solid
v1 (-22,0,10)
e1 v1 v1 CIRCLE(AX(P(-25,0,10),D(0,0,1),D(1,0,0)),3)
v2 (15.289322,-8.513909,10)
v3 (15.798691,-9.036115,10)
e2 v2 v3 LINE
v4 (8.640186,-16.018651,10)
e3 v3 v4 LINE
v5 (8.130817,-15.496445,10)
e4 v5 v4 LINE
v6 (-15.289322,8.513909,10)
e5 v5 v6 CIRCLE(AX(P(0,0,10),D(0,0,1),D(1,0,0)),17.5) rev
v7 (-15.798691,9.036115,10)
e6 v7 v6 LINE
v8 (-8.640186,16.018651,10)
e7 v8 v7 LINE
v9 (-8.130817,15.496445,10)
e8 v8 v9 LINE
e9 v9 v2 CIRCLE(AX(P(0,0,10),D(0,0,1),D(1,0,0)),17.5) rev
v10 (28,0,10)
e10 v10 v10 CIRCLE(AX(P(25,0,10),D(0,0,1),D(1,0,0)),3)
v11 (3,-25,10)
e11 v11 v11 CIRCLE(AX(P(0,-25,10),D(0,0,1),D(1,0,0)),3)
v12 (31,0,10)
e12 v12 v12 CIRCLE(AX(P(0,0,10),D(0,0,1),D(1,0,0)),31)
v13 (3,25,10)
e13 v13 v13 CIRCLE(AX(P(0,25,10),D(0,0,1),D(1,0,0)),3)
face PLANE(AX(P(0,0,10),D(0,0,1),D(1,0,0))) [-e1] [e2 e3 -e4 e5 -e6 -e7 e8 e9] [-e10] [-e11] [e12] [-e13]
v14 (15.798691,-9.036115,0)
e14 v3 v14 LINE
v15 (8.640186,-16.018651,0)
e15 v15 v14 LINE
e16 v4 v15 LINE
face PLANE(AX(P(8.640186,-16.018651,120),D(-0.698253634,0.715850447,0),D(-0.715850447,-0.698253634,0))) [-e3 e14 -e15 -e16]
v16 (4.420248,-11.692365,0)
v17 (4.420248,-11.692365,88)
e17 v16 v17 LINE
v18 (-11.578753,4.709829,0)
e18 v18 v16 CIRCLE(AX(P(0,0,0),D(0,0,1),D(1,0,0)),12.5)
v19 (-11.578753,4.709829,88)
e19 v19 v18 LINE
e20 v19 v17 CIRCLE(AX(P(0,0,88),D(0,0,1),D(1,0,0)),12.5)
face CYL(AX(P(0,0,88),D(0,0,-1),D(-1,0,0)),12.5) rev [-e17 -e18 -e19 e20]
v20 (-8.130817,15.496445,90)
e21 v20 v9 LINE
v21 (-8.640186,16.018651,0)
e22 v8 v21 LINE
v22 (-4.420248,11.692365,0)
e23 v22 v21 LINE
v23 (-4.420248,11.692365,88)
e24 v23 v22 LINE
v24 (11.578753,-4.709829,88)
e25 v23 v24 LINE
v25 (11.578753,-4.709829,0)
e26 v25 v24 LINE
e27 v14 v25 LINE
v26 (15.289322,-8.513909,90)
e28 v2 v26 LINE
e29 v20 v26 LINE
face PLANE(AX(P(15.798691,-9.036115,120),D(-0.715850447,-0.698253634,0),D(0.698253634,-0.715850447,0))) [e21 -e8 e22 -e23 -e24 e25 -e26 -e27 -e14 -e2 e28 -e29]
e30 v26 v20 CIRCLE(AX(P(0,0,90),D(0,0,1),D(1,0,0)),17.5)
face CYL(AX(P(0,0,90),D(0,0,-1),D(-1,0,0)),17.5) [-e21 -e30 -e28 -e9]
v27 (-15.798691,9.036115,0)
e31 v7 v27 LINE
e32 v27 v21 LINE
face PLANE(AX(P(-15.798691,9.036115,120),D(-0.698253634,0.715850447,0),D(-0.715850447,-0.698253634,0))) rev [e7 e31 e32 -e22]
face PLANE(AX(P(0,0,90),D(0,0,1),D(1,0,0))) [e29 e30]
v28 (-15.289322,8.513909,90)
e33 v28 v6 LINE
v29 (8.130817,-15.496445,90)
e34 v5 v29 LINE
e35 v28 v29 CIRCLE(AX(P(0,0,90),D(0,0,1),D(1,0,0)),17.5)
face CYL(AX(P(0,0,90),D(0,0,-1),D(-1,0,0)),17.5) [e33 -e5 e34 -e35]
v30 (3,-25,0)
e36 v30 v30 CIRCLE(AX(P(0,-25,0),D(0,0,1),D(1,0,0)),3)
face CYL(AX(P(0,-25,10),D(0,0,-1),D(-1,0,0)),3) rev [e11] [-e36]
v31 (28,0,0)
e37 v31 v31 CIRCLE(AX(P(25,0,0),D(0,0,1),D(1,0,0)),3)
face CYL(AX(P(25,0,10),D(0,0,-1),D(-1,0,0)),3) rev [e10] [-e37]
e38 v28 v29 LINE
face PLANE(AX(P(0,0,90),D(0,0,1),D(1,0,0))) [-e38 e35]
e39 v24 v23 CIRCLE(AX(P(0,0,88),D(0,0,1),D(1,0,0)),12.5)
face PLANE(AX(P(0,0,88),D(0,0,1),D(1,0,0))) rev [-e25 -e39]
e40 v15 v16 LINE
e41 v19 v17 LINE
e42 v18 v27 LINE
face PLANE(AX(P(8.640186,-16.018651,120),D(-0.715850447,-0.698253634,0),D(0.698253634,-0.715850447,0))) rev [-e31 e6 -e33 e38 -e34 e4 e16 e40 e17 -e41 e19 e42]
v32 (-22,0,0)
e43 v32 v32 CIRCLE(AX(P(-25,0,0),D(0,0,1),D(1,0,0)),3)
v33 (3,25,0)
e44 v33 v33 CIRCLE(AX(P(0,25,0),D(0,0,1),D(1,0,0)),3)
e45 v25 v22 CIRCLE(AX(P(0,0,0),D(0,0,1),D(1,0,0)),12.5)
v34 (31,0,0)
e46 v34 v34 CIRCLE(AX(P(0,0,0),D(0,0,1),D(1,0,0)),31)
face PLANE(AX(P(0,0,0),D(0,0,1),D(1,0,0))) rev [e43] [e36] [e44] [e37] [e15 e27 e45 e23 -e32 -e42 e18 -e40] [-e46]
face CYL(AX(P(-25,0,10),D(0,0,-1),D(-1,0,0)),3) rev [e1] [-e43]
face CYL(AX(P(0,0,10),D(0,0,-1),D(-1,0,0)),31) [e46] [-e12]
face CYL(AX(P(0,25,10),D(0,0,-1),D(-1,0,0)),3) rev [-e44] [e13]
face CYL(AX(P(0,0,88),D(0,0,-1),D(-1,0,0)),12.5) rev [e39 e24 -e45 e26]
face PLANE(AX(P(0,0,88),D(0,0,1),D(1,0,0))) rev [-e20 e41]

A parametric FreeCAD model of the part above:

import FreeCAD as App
import Part
import Sketcher

V = App.Vector
Q = App.Units.Quantity


def add_polygon(sketch, points):
    """Adds a closed chain of lines whose ends are joined by coincident constraints."""
    first, n = sketch.GeometryCount, len(points)
    for a, b in zip(points, points[1:] + points[:1]):
        sketch.addGeometry(Part.LineSegment(App.Vector(*a, 0), App.Vector(*b, 0)), False)
    for i in range(n):
        sketch.addConstraint(Sketcher.Constraint("Coincident", first + i, 2, first + (i + 1) % n, 1))

doc = App.newDocument("Part")
params = doc.addObject("Spreadsheet::Sheet", "Params")
for row, (alias, value) in enumerate([
    ("sketch1_diameter", "62 mm"),
    ("pad1_length", "10 mm"),
    ("sketch2_diameter", "6 mm"),
    ("pocket1_length", "10 mm"),
    ("sketch3_diameter", "35 mm"),
    ("pad2_length", "90 mm"),
    ("sketch4_diameter", "25 mm"),
    ("pocket2_length", "88 mm"),
    ("sketch5_length", "35 mm"),
    ("sketch5_length2", "10 mm"),
    ("pocket3_length", "120 mm"),
], start=1):
    params.set(f"A{row}", alias)
    params.set(f"B{row}", "=" + value)
    params.setAlias(f"B{row}", alias)

body = doc.addObject("PartDesign::Body", "Body")

# Sketch on XY plane
sketch1 = doc.addObject("Sketcher::SketchObject", "Sketch")
body.addObject(sketch1)
sketch1.AttachmentSupport = (doc.XY_Plane, [""])
sketch1.MapMode = "FlatFace"
sketch1.addGeometry(Part.Circle(V(0, 0, 0), V(0, 0, 1), 31), False)
sketch1.addConstraint(Sketcher.Constraint("Coincident", 0, 3, -1, 1))
sketch1.addConstraint(Sketcher.Constraint("Diameter", 0, Q("62 mm")))
sketch1.setExpression("Constraints[1]", "Params.sketch1_diameter")
pad1 = doc.addObject("PartDesign::Pad", "Pad")
body.addObject(pad1)
pad1.Profile = sketch1
pad1.setExpression("Length", "Params.pad1_length")

# Sketch on XY plane
sketch2 = doc.addObject("Sketcher::SketchObject", "Sketch001")
body.addObject(sketch2)
sketch2.AttachmentSupport = (doc.XY_Plane, [""])
sketch2.MapMode = "FlatFace"
sketch2.addGeometry(Part.Circle(V(0, -25, 0), V(0, 0, 1), 3), False)
sketch2.addGeometry(Part.Circle(V(-25, 0, 0), V(0, 0, 1), 3), False)
sketch2.addGeometry(Part.Circle(V(0, 25, 0), V(0, 0, 1), 3), False)
sketch2.addGeometry(Part.Circle(V(25, 0, 0), V(0, 0, 1), 3), False)
sketch2.addConstraint(Sketcher.Constraint("Equal", 0, 1))
sketch2.addConstraint(Sketcher.Constraint("Equal", 1, 2))
sketch2.addConstraint(Sketcher.Constraint("Equal", 2, 3))
sketch2.addConstraint(Sketcher.Constraint("Symmetric", 0, 3, 2, 3, -1, 1))
sketch2.addConstraint(Sketcher.Constraint("Symmetric", 1, 3, 3, 3, -1, 1))
sketch2.addConstraint(Sketcher.Constraint("PointOnObject", 0, 3, -2))
sketch2.addConstraint(Sketcher.Constraint("PointOnObject", 1, 3, -1))
sketch2.addConstraint(Sketcher.Constraint("Diameter", 0, Q("6 mm")))
sketch2.addConstraint(Sketcher.Constraint("DistanceY", 0, 3, -1, 1, Q("25 mm")))
sketch2.addConstraint(Sketcher.Constraint("DistanceX", 1, 3, -1, 1, Q("25 mm")))
sketch2.setExpression("Constraints[7]", "Params.sketch2_diameter")
pocket1 = doc.addObject("PartDesign::Pocket", "Pocket")
body.addObject(pocket1)
pocket1.Profile = sketch2
pocket1.setExpression("Length", "Params.pocket1_length")
pocket1.Reversed = True

# Sketch on XY plane
sketch3 = doc.addObject("Sketcher::SketchObject", "Sketch002")
body.addObject(sketch3)
sketch3.AttachmentSupport = (doc.XY_Plane, [""])
sketch3.MapMode = "FlatFace"
sketch3.addGeometry(Part.Circle(V(0, 0, 0), V(0, 0, 1), 17.5), False)
sketch3.addConstraint(Sketcher.Constraint("Coincident", 0, 3, -1, 1))
sketch3.addConstraint(Sketcher.Constraint("Diameter", 0, Q("35 mm")))
sketch3.setExpression("Constraints[1]", "Params.sketch3_diameter")
pad2 = doc.addObject("PartDesign::Pad", "Pad001")
body.addObject(pad2)
pad2.Profile = sketch3
pad2.setExpression("Length", "Params.pad2_length")

# Sketch on XY plane
sketch4 = doc.addObject("Sketcher::SketchObject", "Sketch003")
body.addObject(sketch4)
sketch4.AttachmentSupport = (doc.XY_Plane, [""])
sketch4.MapMode = "FlatFace"
sketch4.addGeometry(Part.Circle(V(0, 0, 0), V(0, 0, 1), 12.5), False)
sketch4.addConstraint(Sketcher.Constraint("Coincident", 0, 3, -1, 1))
sketch4.addConstraint(Sketcher.Constraint("Diameter", 0, Q("25 mm")))
sketch4.setExpression("Constraints[1]", "Params.sketch4_diameter")
pocket2 = doc.addObject("PartDesign::Pocket", "Pocket001")
body.addObject(pocket2)
pocket2.Profile = sketch4
pocket2.setExpression("Length", "Params.pocket2_length")
pocket2.Reversed = True

# Sketch on XY plane
sketch5 = doc.addObject("Sketcher::SketchObject", "Sketch004")
body.addObject(sketch5)
sketch5.AttachmentSupport = (doc.XY_Plane, [""])
sketch5.MapMode = "FlatFace"
add_polygon(sketch5, [(-15.798691, 9.036115), (8.640186, -16.018651), (15.798691, -9.036115), (-8.640186, 16.018651)])  # lines 0-3
sketch5.addConstraint(Sketcher.Constraint("Symmetric", 0, 2, 2, 2, -1, 1))
sketch5.addConstraint(Sketcher.Constraint("Symmetric", 1, 2, 3, 2, -1, 1))
sketch5.addConstraint(Sketcher.Constraint("Perpendicular", 0, 1))
sketch5.addConstraint(Sketcher.Constraint("Distance", 0, Q("35 mm")))
sketch5.addConstraint(Sketcher.Constraint("Distance", 1, Q("10 mm")))
sketch5.addConstraint(Sketcher.Constraint("DistanceY", 0, 2, 2, 2, Q("32.037302 mm")))
sketch5.setExpression("Constraints[7]", "Params.sketch5_length")
sketch5.setExpression("Constraints[8]", "Params.sketch5_length2")
pocket3 = doc.addObject("PartDesign::Pocket", "Pocket002")
body.addObject(pocket3)
pocket3.Profile = sketch5
pocket3.setExpression("Length", "Params.pocket3_length")
pocket3.Reversed = True

doc.recompute()
